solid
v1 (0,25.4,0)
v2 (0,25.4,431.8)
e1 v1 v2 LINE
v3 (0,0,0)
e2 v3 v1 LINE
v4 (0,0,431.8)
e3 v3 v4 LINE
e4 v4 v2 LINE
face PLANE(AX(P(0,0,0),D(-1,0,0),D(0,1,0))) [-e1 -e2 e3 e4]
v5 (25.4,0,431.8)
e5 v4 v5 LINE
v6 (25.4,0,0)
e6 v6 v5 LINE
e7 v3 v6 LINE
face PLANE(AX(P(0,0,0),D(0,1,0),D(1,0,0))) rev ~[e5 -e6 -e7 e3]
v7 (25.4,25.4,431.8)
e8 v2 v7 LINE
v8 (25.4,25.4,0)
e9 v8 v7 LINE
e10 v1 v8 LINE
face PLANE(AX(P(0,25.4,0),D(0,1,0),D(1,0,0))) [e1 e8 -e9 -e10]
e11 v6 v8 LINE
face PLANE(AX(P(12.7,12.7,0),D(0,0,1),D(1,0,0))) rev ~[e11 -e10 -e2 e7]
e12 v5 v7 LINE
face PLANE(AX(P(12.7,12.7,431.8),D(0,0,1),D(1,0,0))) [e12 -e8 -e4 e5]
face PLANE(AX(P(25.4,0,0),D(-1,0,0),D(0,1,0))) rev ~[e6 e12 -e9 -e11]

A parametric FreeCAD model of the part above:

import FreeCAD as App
import Part
import Sketcher
Q = App.Units.Quantity


def add_polygon(sketch, points):
    """Adds a closed chain of lines whose ends are joined by coincident constraints."""
    first, n = sketch.GeometryCount, len(points)
    for a, b in zip(points, points[1:] + points[:1]):
        sketch.addGeometry(Part.LineSegment(App.Vector(*a, 0), App.Vector(*b, 0)), False)
    for i in range(n):
        sketch.addConstraint(Sketcher.Constraint("Coincident", first + i, 2, first + (i + 1) % n, 1))

doc = App.newDocument("Part")
body = doc.addObject("PartDesign::Body", "Body")

sketch1 = body.newObject("Sketcher::SketchObject", "Sketch")
sketch1.AttachmentSupport = (doc.getObject("XY_Plane"), [""])
sketch1.MapMode = "FlatFace"
add_polygon(sketch1, [(0, 25), (0, 0), (25, 0), (25, 25)])
sketch1.addConstraint([
    Sketcher.Constraint("Vertical", 0),
    Sketcher.Constraint("Horizontal", 1),
    Sketcher.Constraint("Vertical", 2),
    Sketcher.Constraint("Horizontal", 3),
    Sketcher.Constraint("Coincident", 0, 2, -1, 1),
    Sketcher.Constraint("Equal", 3, 0),
    Sketcher.Constraint("DistanceX", 1, 1, 1, 2, Q("1 in")),
])
pad1 = body.newObject("PartDesign::Pad", "Pad")
pad1.Profile = sketch1
pad1.Length = Q("17 in")

doc.recompute()
